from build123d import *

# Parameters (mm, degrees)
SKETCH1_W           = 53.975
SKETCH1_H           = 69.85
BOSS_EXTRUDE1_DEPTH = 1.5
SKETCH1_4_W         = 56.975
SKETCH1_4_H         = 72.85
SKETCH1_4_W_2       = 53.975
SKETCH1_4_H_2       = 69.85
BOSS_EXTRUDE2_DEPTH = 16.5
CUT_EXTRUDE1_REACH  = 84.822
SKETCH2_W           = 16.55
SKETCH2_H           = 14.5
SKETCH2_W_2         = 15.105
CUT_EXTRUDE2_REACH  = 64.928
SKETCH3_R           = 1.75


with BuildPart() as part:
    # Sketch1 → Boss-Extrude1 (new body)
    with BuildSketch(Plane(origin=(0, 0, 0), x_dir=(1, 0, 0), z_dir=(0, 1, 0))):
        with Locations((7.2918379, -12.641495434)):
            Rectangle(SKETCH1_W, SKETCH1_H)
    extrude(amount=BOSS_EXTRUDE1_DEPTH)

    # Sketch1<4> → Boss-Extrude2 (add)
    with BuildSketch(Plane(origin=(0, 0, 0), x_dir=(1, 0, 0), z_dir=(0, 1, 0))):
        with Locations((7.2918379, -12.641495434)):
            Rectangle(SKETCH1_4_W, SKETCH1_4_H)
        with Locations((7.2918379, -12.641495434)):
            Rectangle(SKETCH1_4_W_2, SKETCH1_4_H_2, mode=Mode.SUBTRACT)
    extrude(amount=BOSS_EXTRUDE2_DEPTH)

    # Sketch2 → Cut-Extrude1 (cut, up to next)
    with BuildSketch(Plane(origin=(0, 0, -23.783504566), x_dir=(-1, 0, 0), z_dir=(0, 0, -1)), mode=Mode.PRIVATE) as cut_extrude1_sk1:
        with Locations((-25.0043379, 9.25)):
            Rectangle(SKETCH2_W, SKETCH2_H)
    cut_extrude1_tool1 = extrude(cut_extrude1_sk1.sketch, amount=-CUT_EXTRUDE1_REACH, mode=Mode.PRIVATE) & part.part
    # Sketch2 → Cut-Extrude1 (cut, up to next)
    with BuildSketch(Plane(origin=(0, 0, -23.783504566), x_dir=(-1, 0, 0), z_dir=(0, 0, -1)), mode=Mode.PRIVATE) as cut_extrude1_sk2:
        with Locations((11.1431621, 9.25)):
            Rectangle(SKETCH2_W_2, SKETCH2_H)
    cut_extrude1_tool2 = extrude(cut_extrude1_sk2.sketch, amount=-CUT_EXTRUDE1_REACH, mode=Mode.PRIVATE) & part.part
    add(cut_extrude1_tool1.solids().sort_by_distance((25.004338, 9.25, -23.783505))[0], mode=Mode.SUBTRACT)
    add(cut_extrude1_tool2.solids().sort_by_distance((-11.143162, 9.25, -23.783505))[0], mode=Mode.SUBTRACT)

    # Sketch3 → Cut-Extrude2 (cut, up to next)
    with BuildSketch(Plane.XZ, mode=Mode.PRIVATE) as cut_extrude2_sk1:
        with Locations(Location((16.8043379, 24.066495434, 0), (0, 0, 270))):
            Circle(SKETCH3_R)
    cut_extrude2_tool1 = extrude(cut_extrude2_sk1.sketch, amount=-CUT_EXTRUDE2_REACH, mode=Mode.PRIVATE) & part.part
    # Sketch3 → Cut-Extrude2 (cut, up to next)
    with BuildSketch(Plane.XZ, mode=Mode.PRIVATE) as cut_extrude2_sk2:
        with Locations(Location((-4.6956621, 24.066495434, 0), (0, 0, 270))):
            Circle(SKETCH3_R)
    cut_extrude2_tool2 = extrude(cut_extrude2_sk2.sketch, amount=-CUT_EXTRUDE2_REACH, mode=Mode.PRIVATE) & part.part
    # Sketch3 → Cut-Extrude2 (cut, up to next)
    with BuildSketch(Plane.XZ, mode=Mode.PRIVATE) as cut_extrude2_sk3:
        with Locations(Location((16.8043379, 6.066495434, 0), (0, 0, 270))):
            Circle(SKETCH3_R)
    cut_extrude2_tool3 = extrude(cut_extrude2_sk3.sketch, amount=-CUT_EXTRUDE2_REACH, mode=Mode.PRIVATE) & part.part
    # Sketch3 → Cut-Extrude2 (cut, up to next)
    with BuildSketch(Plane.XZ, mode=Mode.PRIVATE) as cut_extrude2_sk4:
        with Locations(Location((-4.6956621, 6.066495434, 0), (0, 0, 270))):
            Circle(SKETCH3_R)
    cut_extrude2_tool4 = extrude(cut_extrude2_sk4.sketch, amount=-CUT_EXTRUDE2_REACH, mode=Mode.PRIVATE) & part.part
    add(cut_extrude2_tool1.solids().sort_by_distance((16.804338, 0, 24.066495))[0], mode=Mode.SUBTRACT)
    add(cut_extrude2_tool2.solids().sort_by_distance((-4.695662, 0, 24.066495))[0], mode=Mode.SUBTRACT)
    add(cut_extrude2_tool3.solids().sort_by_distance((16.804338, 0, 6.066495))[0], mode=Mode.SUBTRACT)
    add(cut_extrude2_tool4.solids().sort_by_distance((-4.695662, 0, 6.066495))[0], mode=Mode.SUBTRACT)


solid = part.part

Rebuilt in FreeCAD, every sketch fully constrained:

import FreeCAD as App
import Part
import Sketcher
from FreeCAD import Vector
Q = App.Units.Quantity

doc = App.newDocument("Part")
body = doc.addObject("PartDesign::Body", "Body")

# Sketch on XZ plane
sketch1 = body.newObject("Sketcher::SketchObject", "Sketch")
sketch1.AttachmentSupport = (doc.getObject("XZ_Plane"), [""])
sketch1.MapMode = "FlatFace"
sketch1.addGeometry([
    Part.LineSegment(Vector(-20, -22, 0), Vector(-20, 48, 0)),
    Part.LineSegment(Vector(-20, 48, 0), Vector(34, 48, 0)),
    Part.LineSegment(Vector(34, 48, 0), Vector(34, -22, 0)),
    Part.LineSegment(Vector(34, -22, 0), Vector(-20, -22, 0)),
], False)
sketch1.addConstraint([
    Sketcher.Constraint("Coincident", 0, 2, 1, 1),
    Sketcher.Constraint("Coincident", 1, 2, 2, 1),
    Sketcher.Constraint("Coincident", 2, 2, 3, 1),
    Sketcher.Constraint("Coincident", 3, 2, 0, 1),
    Sketcher.Constraint("Vertical", 0),
    Sketcher.Constraint("Horizontal", 1),
    Sketcher.Constraint("Vertical", 2),
    Sketcher.Constraint("Horizontal", 3),
    Sketcher.Constraint("DistanceY", 0, 1, 0, 2, Q("69.85 mm")),
    Sketcher.Constraint("DistanceX", 1, 1, 1, 2, Q("53.975 mm")),
    Sketcher.Constraint("DistanceX", 0, 2, -1, 1, Q("19.695662 mm")),
    Sketcher.Constraint("DistanceY", -1, 1, 0, 2, Q("47.566495 mm")),
])
pad1 = body.newObject("PartDesign::Pad", "Pad")
pad1.Profile = sketch1
pad1.Length = 1.5
pad1.Reversed = True

# Sketch on XZ plane
sketch2 = body.newObject("Sketcher::SketchObject", "Sketch001")
sketch2.AttachmentSupport = (doc.getObject("XZ_Plane"), [""])
sketch2.MapMode = "FlatFace"
sketch2.addGeometry([
    Part.LineSegment(Vector(-21, -24, 0), Vector(-21, 49, 0)),  # 0
    Part.LineSegment(Vector(-21, 49, 0), Vector(36, 49, 0)),  # 1
    Part.LineSegment(Vector(36, 49, 0), Vector(36, -24, 0)),  # 2
    Part.LineSegment(Vector(36, -24, 0), Vector(-21, -24, 0)),  # 3
    Part.LineSegment(Vector(34, 48, 0), Vector(-20, 48, 0)),  # 4
    Part.LineSegment(Vector(-20, 48, 0), Vector(-20, -22, 0)),  # 5
    Part.LineSegment(Vector(-20, -22, 0), Vector(34, -22, 0)),  # 6
    Part.LineSegment(Vector(34, -22, 0), Vector(34, 48, 0)),  # 7
], False)
sketch2.addConstraint([
    Sketcher.Constraint("Coincident", 0, 2, 1, 1),
    Sketcher.Constraint("Coincident", 1, 2, 2, 1),
    Sketcher.Constraint("Coincident", 2, 2, 3, 1),
    Sketcher.Constraint("Coincident", 3, 2, 0, 1),
    Sketcher.Constraint("Coincident", 4, 2, 5, 1),
    Sketcher.Constraint("Coincident", 5, 2, 6, 1),
    Sketcher.Constraint("Coincident", 6, 2, 7, 1),
    Sketcher.Constraint("Coincident", 7, 2, 4, 1),
    Sketcher.Constraint("Vertical", 0),
    Sketcher.Constraint("Horizontal", 1),
    Sketcher.Constraint("Vertical", 2),
    Sketcher.Constraint("Horizontal", 3),
    Sketcher.Constraint("Horizontal", 4),
    Sketcher.Constraint("Vertical", 5),
    Sketcher.Constraint("Horizontal", 6),
    Sketcher.Constraint("Vertical", 7),
    Sketcher.Constraint("DistanceY", 0, 1, 0, 2, Q("72.85 mm")),
    Sketcher.Constraint("DistanceY", 5, 2, 5, 1, Q("69.85 mm")),
    Sketcher.Constraint("DistanceX", 0, 2, 4, 2, Q("1.5 mm")),
    Sketcher.Constraint("DistanceY", 4, 2, 0, 2, Q("1.5 mm")),
    Sketcher.Constraint("DistanceX", 6, 2, 2, 2, Q("1.5 mm")),
    Sketcher.Constraint("DistanceX", 1, 1, 1, 2, Q("56.975 mm")),
    Sketcher.Constraint("DistanceX", 0, 2, -1, 1, Q("21.195662 mm")),
    Sketcher.Constraint("DistanceY", -1, 1, 0, 2, Q("49.066495 mm")),
])
pad2 = body.newObject("PartDesign::Pad", "Pad001")
pad2.Profile = sketch2
pad2.Length = 16.5
pad2.Reversed = True

# Sketch on XY plane
sketch3 = body.newObject("Sketcher::SketchObject", "Sketch002")
sketch3.AttachmentSupport = (doc.getObject("XY_Plane"), [""])
sketch3.MapMode = "FlatFace"
sketch3.AttachmentOffset = App.Placement(Vector(0, 0, -23.783505), App.Rotation())
sketch3.addGeometry([
    Part.LineSegment(Vector(33, 16, 0), Vector(33, 2, 0)),
    Part.LineSegment(Vector(33, 2, 0), Vector(17, 2, 0)),
    Part.LineSegment(Vector(17, 2, 0), Vector(17, 16, 0)),
    Part.LineSegment(Vector(17, 16, 0), Vector(33, 16, 0)),
], False)
sketch3.addConstraint([
    Sketcher.Constraint("Coincident", 0, 2, 1, 1),
    Sketcher.Constraint("Coincident", 1, 2, 2, 1),
    Sketcher.Constraint("Coincident", 2, 2, 3, 1),
    Sketcher.Constraint("Coincident", 3, 2, 0, 1),
    Sketcher.Constraint("Vertical", 0),
    Sketcher.Constraint("Horizontal", 1),
    Sketcher.Constraint("Vertical", 2),
    Sketcher.Constraint("Horizontal", 3),
    Sketcher.Constraint("DistanceY", 0, 2, 0, 1, Q("14.5 mm")),
    Sketcher.Constraint("DistanceY", -1, 1, 0, 2, Q("2 mm")),
    Sketcher.Constraint("DistanceX", 1, 2, 1, 1, Q("16.55 mm")),
    Sketcher.Constraint("DistanceX", -1, 1, 0, 2, Q("33.279338 mm")),
])
pocket1 = body.newObject("PartDesign::Pocket", "Pocket")
pocket1.Profile = sketch3
pocket1.Type = "UpToFirst"
pocket1.Reversed = True

# Sketch on XY plane
sketch4 = body.newObject("Sketcher::SketchObject", "Sketch003")
sketch4.AttachmentSupport = (doc.getObject("XY_Plane"), [""])
sketch4.MapMode = "FlatFace"
sketch4.AttachmentOffset = App.Placement(Vector(0, 0, -23.783505), App.Rotation())
sketch4.addGeometry([
    Part.LineSegment(Vector(-4, 16, 0), Vector(-4, 2, 0)),
    Part.LineSegment(Vector(-4, 2, 0), Vector(-19, 2, 0)),
    Part.LineSegment(Vector(-19, 2, 0), Vector(-19, 16, 0)),
    Part.LineSegment(Vector(-19, 16, 0), Vector(-4, 16, 0)),
], False)
sketch4.addConstraint([
    Sketcher.Constraint("Coincident", 0, 2, 1, 1),
    Sketcher.Constraint("Coincident", 1, 2, 2, 1),
    Sketcher.Constraint("Coincident", 2, 2, 3, 1),
    Sketcher.Constraint("Coincident", 3, 2, 0, 1),
    Sketcher.Constraint("Vertical", 0),
    Sketcher.Constraint("Horizontal", 1),
    Sketcher.Constraint("Vertical", 2),
    Sketcher.Constraint("Horizontal", 3),
    Sketcher.Constraint("DistanceY", 0, 2, 0, 1, Q("14.5 mm")),
    Sketcher.Constraint("DistanceY", -1, 1, 0, 2, Q("2 mm")),
    Sketcher.Constraint("DistanceX", 1, 2, 1, 1, Q("15.105 mm")),
    Sketcher.Constraint("DistanceX", 0, 2, -1, 1, Q("3.590662 mm")),
])
pocket2 = body.newObject("PartDesign::Pocket", "Pocket001")
pocket2.Profile = sketch4
pocket2.Type = "UpToFirst"
pocket2.Reversed = True

# Sketch on XZ plane
sketch5 = body.newObject("Sketcher::SketchObject", "Sketch004")
sketch5.AttachmentSupport = (doc.getObject("XZ_Plane"), [""])
sketch5.MapMode = "FlatFace"
sketch5.addGeometry(Part.Circle(Vector(16.8, 24.1, 0), Vector(0, 0, 1), 1.8), False)
sketch5.addConstraint([
    Sketcher.Constraint("Diameter", 0, Q("3.5 mm")),
    Sketcher.Constraint("DistanceX", -1, 1, 0, 3, Q("16.804338 mm")),
    Sketcher.Constraint("DistanceY", -1, 1, 0, 3, Q("24.066495 mm")),
])
pocket3 = body.newObject("PartDesign::Pocket", "Pocket002")
pocket3.Profile = sketch5
pocket3.Type = "UpToFirst"

# Sketch on XZ plane
sketch6 = body.newObject("Sketcher::SketchObject", "Sketch005")
sketch6.AttachmentSupport = (doc.getObject("XZ_Plane"), [""])
sketch6.MapMode = "FlatFace"
sketch6.addGeometry(Part.Circle(Vector(-4.7, 24.1, 0), Vector(0, 0, 1), 1.8), False)
sketch6.addConstraint([
    Sketcher.Constraint("Diameter", 0, Q("3.5 mm")),
    Sketcher.Constraint("DistanceX", 0, 3, -1, 1, Q("4.695662 mm")),
    Sketcher.Constraint("DistanceY", -1, 1, 0, 3, Q("24.066495 mm")),
])
pocket4 = body.newObject("PartDesign::Pocket", "Pocket003")
pocket4.Profile = sketch6
pocket4.Type = "UpToFirst"

# Sketch on XZ plane
sketch7 = body.newObject("Sketcher::SketchObject", "Sketch006")
sketch7.AttachmentSupport = (doc.getObject("XZ_Plane"), [""])
sketch7.MapMode = "FlatFace"
sketch7.addGeometry(Part.Circle(Vector(16.8, 6.1, 0), Vector(0, 0, 1), 1.8), False)
sketch7.addConstraint([
    Sketcher.Constraint("Diameter", 0, Q("3.5 mm")),
    Sketcher.Constraint("DistanceX", -1, 1, 0, 3, Q("16.804338 mm")),
    Sketcher.Constraint("DistanceY", -1, 1, 0, 3, Q("6.066495 mm")),
])
pocket5 = body.newObject("PartDesign::Pocket", "Pocket004")
pocket5.Profile = sketch7
pocket5.Type = "UpToFirst"

# Sketch on XZ plane
sketch8 = body.newObject("Sketcher::SketchObject", "Sketch007")
sketch8.AttachmentSupport = (doc.getObject("XZ_Plane"), [""])
sketch8.MapMode = "FlatFace"
sketch8.addGeometry(Part.Circle(Vector(-4.7, 6.1, 0), Vector(0, 0, 1), 1.8), False)
sketch8.addConstraint([
    Sketcher.Constraint("Diameter", 0, Q("3.5 mm")),
    Sketcher.Constraint("DistanceX", 0, 3, -1, 1, Q("4.695662 mm")),
    Sketcher.Constraint("DistanceY", -1, 1, 0, 3, Q("6.066495 mm")),
])
pocket6 = body.newObject("PartDesign::Pocket", "Pocket005")
pocket6.Profile = sketch8
pocket6.Type = "UpToFirst"

doc.recompute()
